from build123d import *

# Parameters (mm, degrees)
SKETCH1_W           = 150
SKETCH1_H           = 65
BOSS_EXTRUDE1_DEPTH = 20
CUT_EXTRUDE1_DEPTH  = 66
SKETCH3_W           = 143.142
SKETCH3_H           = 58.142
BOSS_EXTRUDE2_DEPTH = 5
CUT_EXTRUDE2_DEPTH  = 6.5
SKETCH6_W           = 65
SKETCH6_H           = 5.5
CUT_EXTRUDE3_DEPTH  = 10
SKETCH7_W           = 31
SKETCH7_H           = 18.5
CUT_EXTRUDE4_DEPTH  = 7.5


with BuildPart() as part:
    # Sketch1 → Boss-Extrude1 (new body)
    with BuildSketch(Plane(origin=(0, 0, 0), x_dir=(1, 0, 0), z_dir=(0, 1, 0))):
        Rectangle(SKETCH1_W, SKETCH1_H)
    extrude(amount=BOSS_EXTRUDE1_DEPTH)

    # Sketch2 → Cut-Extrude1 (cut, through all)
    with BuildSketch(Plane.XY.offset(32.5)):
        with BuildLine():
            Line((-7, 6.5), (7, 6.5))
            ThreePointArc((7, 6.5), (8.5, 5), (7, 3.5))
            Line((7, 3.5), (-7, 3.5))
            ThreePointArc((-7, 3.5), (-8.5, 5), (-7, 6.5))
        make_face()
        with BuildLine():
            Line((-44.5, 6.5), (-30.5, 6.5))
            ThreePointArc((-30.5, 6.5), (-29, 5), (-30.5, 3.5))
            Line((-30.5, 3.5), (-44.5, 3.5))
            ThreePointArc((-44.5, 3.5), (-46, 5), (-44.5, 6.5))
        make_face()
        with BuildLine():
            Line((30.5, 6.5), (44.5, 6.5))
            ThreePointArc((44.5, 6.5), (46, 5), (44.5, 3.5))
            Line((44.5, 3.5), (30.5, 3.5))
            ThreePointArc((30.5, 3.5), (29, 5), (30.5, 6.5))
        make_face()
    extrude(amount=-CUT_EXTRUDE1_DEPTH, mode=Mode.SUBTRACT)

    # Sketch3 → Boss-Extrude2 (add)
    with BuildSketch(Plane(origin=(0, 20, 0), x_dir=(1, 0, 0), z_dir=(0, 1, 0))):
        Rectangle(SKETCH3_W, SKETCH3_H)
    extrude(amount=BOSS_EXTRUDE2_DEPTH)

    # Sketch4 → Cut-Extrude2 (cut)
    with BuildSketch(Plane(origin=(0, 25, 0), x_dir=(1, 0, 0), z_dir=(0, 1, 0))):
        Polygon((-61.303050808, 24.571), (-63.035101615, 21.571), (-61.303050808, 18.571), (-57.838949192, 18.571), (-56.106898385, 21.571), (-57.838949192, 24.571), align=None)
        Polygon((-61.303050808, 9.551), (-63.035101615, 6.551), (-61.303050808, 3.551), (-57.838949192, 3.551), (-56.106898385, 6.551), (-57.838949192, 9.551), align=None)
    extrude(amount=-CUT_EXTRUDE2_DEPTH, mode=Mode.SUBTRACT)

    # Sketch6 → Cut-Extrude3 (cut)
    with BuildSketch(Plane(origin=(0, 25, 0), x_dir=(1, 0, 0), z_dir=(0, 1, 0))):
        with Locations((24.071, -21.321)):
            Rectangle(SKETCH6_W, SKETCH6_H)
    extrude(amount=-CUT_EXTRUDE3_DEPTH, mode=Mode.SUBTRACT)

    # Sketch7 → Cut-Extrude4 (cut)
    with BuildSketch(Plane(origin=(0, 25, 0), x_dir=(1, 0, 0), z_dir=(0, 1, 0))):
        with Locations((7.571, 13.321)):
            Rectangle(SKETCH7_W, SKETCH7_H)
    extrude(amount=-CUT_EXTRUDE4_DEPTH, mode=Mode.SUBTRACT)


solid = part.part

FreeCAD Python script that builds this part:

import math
import FreeCAD as App
import Part
import Sketcher
from FreeCAD import Vector
Q = App.Units.Quantity


def add_polygon(sketch, points):
    """Adds a closed chain of lines whose ends are joined by coincident constraints."""
    first, n = sketch.GeometryCount, len(points)
    for a, b in zip(points, points[1:] + points[:1]):
        sketch.addGeometry(Part.LineSegment(App.Vector(*a, 0), App.Vector(*b, 0)), False)
    for i in range(n):
        sketch.addConstraint(Sketcher.Constraint("Coincident", first + i, 2, first + (i + 1) % n, 1))

doc = App.newDocument("Part")
body = doc.addObject("PartDesign::Body", "Body")

# Sketch on XZ plane
sketch1 = doc.addObject("Sketcher::SketchObject", "Sketch")
body.addObject(sketch1)
sketch1.AttachmentSupport = (doc.XZ_Plane, [""])
sketch1.MapMode = "FlatFace"
add_polygon(sketch1, [(-75, -32), (-75, 32), (75, 32), (75, -32)])  # lines 0-3
sketch1.addConstraint([
    Sketcher.Constraint("Vertical", 0),
    Sketcher.Constraint("Horizontal", 1),
    Sketcher.Constraint("Vertical", 2),
    Sketcher.Constraint("Horizontal", 3),
    Sketcher.Constraint("Symmetric", 0, 2, 2, 2, -1, 1),
    Sketcher.Constraint("DistanceX", 1, 1, 1, 2, Q("150 mm")),
    Sketcher.Constraint("DistanceY", 0, 1, 0, 2, Q("65 mm")),
])
pad1 = doc.addObject("PartDesign::Pad", "Pad")
body.addObject(pad1)
pad1.Profile = sketch1
pad1.Length = 20
pad1.Reversed = True

# Sketch on XY plane
sketch2 = doc.addObject("Sketcher::SketchObject", "Sketch001")
body.addObject(sketch2)
sketch2.AttachmentSupport = (doc.XY_Plane, [""])
sketch2.MapMode = "FlatFace"
sketch2.AttachmentOffset = App.Placement(Vector(0, 0, 32.5), App.Rotation())
sketch2.addGeometry([
    Part.LineSegment(Vector(7, 6.5, 0), Vector(-7, 6.5, 0)),  # 0
    Part.ArcOfCircle(Part.Circle(Vector(-7, 5, 0), Vector(0, 0, 1), 1.5), math.radians(90), math.radians(270)),  # 1
    Part.LineSegment(Vector(-7, 3.5, 0), Vector(7, 3.5, 0)),  # 2
    Part.ArcOfCircle(Part.Circle(Vector(7, 5, 0), Vector(0, 0, 1), 1.5), math.radians(-90), math.radians(90)),  # 3
    Part.LineSegment(Vector(-30.5, 6.5, 0), Vector(-44.5, 6.5, 0)),  # 4
    Part.ArcOfCircle(Part.Circle(Vector(-44.5, 5, 0), Vector(0, 0, 1), 1.5), math.radians(90), math.radians(270)),  # 5
    Part.LineSegment(Vector(-44.5, 3.5, 0), Vector(-30.5, 3.5, 0)),  # 6
    Part.ArcOfCircle(Part.Circle(Vector(-30.5, 5, 0), Vector(0, 0, 1), 1.5), math.radians(-90), math.radians(90)),  # 7
    Part.LineSegment(Vector(44.5, 6.5, 0), Vector(30.5, 6.5, 0)),  # 8
    Part.ArcOfCircle(Part.Circle(Vector(30.5, 5, 0), Vector(0, 0, 1), 1.5), math.radians(90), math.radians(270)),  # 9
    Part.LineSegment(Vector(30.5, 3.5, 0), Vector(44.5, 3.5, 0)),  # 10
    Part.ArcOfCircle(Part.Circle(Vector(44.5, 5, 0), Vector(0, 0, 1), 1.5), math.radians(-90), math.radians(90)),  # 11
], False)
sketch2.addConstraint([
    Sketcher.Constraint("Tangent", 0, 2, 1, 1),
    Sketcher.Constraint("Tangent", 1, 2, 2, 1),
    Sketcher.Constraint("Tangent", 2, 2, 3, 1),
    Sketcher.Constraint("Tangent", 3, 2, 0, 1),
    Sketcher.Constraint("Tangent", 4, 2, 5, 1),
    Sketcher.Constraint("Tangent", 5, 2, 6, 1),
    Sketcher.Constraint("Tangent", 6, 2, 7, 1),
    Sketcher.Constraint("Tangent", 7, 2, 4, 1),
    Sketcher.Constraint("Tangent", 8, 2, 9, 1),
    Sketcher.Constraint("Tangent", 9, 2, 10, 1),
    Sketcher.Constraint("Tangent", 10, 2, 11, 1),
    Sketcher.Constraint("Tangent", 11, 2, 8, 1),
    Sketcher.Constraint("Horizontal", 0),
    Sketcher.Constraint("Horizontal", 2),
    Sketcher.Constraint("Horizontal", 4),
    Sketcher.Constraint("Horizontal", 6),
    Sketcher.Constraint("Horizontal", 8),
    Sketcher.Constraint("Horizontal", 10),
    Sketcher.Constraint("Equal", 3, 5),
    Sketcher.Constraint("Equal", 7, 9),
    Sketcher.Constraint("Symmetric", 7, 3, 9, 3, -2),
    Sketcher.Constraint("Horizontal", 3, 3, 5, 3),
    Sketcher.Constraint("Equal", 2, 4),
    Sketcher.Constraint("Equal", 6, 8),
    Sketcher.Constraint("Radius", 1, Q("1.5 mm")),
    Sketcher.Constraint("DistanceX", 0, 2, 0, 1, Q("14 mm")),
    Sketcher.Constraint("DistanceX", 1, 3, -1, 1, Q("7 mm")),
    Sketcher.Constraint("DistanceY", -1, 1, 1, 3, Q("5 mm")),
    Sketcher.Constraint("DistanceX", 7, 3, 9, 3, Q("61 mm")),
])
pocket1 = doc.addObject("PartDesign::Pocket", "Pocket")
body.addObject(pocket1)
pocket1.Profile = sketch2
pocket1.Type = "ThroughAll"

# Sketch on XZ plane
sketch3 = doc.addObject("Sketcher::SketchObject", "Sketch002")
body.addObject(sketch3)
sketch3.AttachmentSupport = (doc.XZ_Plane, [""])
sketch3.MapMode = "FlatFace"
sketch3.AttachmentOffset = App.Placement(Vector(0, 0, -20), App.Rotation())
add_polygon(sketch3, [(-72, -29), (-72, 29), (72, 29), (72, -29)])  # lines 0-3
sketch3.addConstraint([
    Sketcher.Constraint("Vertical", 0),
    Sketcher.Constraint("Horizontal", 1),
    Sketcher.Constraint("Vertical", 2),
    Sketcher.Constraint("Horizontal", 3),
    Sketcher.Constraint("Symmetric", 0, 2, 2, 2, -1, 1),
    Sketcher.Constraint("DistanceX", 1, 1, 1, 2, Q("143.142 mm")),
    Sketcher.Constraint("DistanceY", 0, 1, 0, 2, Q("58.142 mm")),
])
pad2 = doc.addObject("PartDesign::Pad", "Pad001")
body.addObject(pad2)
pad2.Profile = sketch3
pad2.Length = 5
pad2.Reversed = True

# Sketch on XZ plane
sketch4 = doc.addObject("Sketcher::SketchObject", "Sketch003")
body.addObject(sketch4)
sketch4.AttachmentSupport = (doc.XZ_Plane, [""])
sketch4.MapMode = "FlatFace"
sketch4.AttachmentOffset = App.Placement(Vector(0, 0, -25), App.Rotation())
add_polygon(sketch4, [(-61.3, -24.6), (-63, -21.6), (-61.3, -18.6), (-57.8, -18.6), (-56.1, -21.6), (-57.8, -24.6)])  # lines 0-5
add_polygon(sketch4, [(-61.3, -9.6), (-63, -6.6), (-61.3, -3.6), (-57.8, -3.6), (-56.1, -6.6), (-57.8, -9.6)])  # lines 6-11
sketch4.addConstraint([
    Sketcher.Constraint("Horizontal", 2),
    Sketcher.Constraint("Horizontal", 5),
    Sketcher.Constraint("Horizontal", 8),
    Sketcher.Constraint("Horizontal", 11),
    Sketcher.Constraint("Parallel", 0, 3),
    Sketcher.Constraint("Parallel", 1, 4),
    Sketcher.Constraint("Parallel", 3, 6),
    Sketcher.Constraint("Parallel", 4, 7),
    Sketcher.Constraint("Parallel", 6, 9),
    Sketcher.Constraint("Parallel", 7, 10),
    Sketcher.Constraint("Horizontal", 0, 2, 3, 2),
    Sketcher.Constraint("Horizontal", 6, 2, 9, 2),
    Sketcher.Constraint("Vertical", 2, 2, 4, 2),
    Sketcher.Constraint("Vertical", 1, 2, 5, 2),
    Sketcher.Constraint("Vertical", 0, 2, 6, 2),
    Sketcher.Constraint("Vertical", 5, 2, 7, 2),
    Sketcher.Constraint("Vertical", 4, 2, 8, 2),
    Sketcher.Constraint("Vertical", 8, 2, 10, 2),
    Sketcher.Constraint("Angle", 0, Q("120 deg")),
    Sketcher.Constraint("DistanceY", 0, 2, 1, 2, Q("3 mm")),
    Sketcher.Constraint("DistanceY", 1, 2, 6, 2, Q("12.02 mm")),
    Sketcher.Constraint("DistanceX", 2, 1, 2, 2, Q("3.464102 mm")),
    Sketcher.Constraint("DistanceY", 0, 2, -1, 1, Q("21.571 mm")),
    Sketcher.Constraint("DistanceX", 0, 2, -1, 1, Q("63.035102 mm")),
])
pocket2 = doc.addObject("PartDesign::Pocket", "Pocket001")
body.addObject(pocket2)
pocket2.Profile = sketch4
pocket2.Length = 6.5
pocket2.Reversed = True

# Sketch on XZ plane
sketch5 = doc.addObject("Sketcher::SketchObject", "Sketch004")
body.addObject(sketch5)
sketch5.AttachmentSupport = (doc.XZ_Plane, [""])
sketch5.MapMode = "FlatFace"
sketch5.AttachmentOffset = App.Placement(Vector(0, 0, -25), App.Rotation())
add_polygon(sketch5, [(-8, 19), (-8, 24), (57, 24), (57, 19)])  # lines 0-3
sketch5.addConstraint([
    Sketcher.Constraint("Vertical", 0),
    Sketcher.Constraint("Horizontal", 1),
    Sketcher.Constraint("Vertical", 2),
    Sketcher.Constraint("Horizontal", 3),
    Sketcher.Constraint("DistanceX", 1, 1, 1, 2, Q("65 mm")),
    Sketcher.Constraint("DistanceY", 0, 1, 0, 2, Q("5.5 mm")),
    Sketcher.Constraint("DistanceX", 0, 2, -1, 1, Q("8.429 mm")),
    Sketcher.Constraint("DistanceY", -1, 1, 0, 2, Q("24.071 mm")),
])
pocket3 = doc.addObject("PartDesign::Pocket", "Pocket002")
body.addObject(pocket3)
pocket3.Profile = sketch5
pocket3.Length = 10
pocket3.Reversed = True

# Sketch on XZ plane
sketch6 = doc.addObject("Sketcher::SketchObject", "Sketch005")
body.addObject(sketch6)
sketch6.AttachmentSupport = (doc.XZ_Plane, [""])
sketch6.MapMode = "FlatFace"
sketch6.AttachmentOffset = App.Placement(Vector(0, 0, -25), App.Rotation())
add_polygon(sketch6, [(-8, -23), (-8, -4), (23, -4), (23, -23)])  # lines 0-3
sketch6.addConstraint([
    Sketcher.Constraint("Vertical", 0),
    Sketcher.Constraint("Horizontal", 1),
    Sketcher.Constraint("Vertical", 2),
    Sketcher.Constraint("Horizontal", 3),
    Sketcher.Constraint("DistanceX", 1, 1, 1, 2, Q("31 mm")),
    Sketcher.Constraint("DistanceY", 0, 1, 0, 2, Q("18.5 mm")),
    Sketcher.Constraint("DistanceX", 0, 2, -1, 1, Q("7.929 mm")),
    Sketcher.Constraint("DistanceY", 0, 2, -1, 1, Q("4.071 mm")),
])
pocket4 = doc.addObject("PartDesign::Pocket", "Pocket003")
body.addObject(pocket4)
pocket4.Profile = sketch6
pocket4.Length = 7.5
pocket4.Reversed = True

doc.recompute()
